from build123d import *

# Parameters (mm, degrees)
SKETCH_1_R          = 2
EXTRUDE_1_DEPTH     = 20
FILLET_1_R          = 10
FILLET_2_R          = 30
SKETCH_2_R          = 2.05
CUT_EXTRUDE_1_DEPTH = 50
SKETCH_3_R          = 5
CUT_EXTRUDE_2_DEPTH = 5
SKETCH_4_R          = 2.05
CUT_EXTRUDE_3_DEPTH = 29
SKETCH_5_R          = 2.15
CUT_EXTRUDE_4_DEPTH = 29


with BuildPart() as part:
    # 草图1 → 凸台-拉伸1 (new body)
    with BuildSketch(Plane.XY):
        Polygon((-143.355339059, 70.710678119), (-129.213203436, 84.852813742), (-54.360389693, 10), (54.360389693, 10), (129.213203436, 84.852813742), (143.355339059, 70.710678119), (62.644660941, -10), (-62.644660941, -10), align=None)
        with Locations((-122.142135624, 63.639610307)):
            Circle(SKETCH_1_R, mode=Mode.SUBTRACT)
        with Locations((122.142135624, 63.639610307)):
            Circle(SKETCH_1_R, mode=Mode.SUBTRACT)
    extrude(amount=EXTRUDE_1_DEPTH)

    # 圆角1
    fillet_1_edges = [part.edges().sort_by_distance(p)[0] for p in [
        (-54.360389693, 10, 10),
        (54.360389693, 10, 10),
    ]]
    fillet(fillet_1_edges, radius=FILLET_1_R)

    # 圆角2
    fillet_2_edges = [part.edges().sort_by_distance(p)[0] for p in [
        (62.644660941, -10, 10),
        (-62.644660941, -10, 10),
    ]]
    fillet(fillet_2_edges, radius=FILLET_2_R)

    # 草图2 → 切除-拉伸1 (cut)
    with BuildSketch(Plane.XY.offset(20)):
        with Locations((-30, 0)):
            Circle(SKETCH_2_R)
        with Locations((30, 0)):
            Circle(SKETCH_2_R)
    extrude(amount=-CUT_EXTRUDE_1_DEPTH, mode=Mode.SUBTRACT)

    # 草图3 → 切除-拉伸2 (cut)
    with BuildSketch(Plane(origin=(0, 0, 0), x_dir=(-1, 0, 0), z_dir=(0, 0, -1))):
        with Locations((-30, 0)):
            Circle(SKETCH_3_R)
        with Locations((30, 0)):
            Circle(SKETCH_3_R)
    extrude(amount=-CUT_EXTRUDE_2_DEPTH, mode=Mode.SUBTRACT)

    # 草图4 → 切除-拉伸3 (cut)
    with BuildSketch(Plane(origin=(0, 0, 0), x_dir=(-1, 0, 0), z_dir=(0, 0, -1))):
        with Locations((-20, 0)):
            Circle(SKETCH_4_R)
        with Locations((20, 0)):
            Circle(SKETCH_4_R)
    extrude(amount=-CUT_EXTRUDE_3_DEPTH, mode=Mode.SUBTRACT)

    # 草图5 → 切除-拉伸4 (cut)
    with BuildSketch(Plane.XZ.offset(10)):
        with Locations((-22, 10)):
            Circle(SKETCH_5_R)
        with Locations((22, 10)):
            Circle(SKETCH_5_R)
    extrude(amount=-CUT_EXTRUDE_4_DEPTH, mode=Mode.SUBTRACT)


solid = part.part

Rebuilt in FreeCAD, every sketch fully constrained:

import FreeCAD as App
import Part
import Sketcher
from FreeCAD import Vector
Q = App.Units.Quantity


def edges_at(feature, points):
    """Names of the edges that pass closest to the given points."""
    edges = feature.Shape.Edges
    near = lambda p: min(range(len(edges)), key=lambda i: edges[i].distToShape(Part.Vertex(*p))[0])
    return sorted({f"Edge{near(p) + 1}" for p in points})

doc = App.newDocument("Part")
body = doc.addObject("PartDesign::Body", "Body")

sketch1 = body.newObject("Sketcher::SketchObject", "Sketch")
sketch1.AttachmentSupport = (doc.getObject("XY_Plane"), [""])
sketch1.MapMode = "FlatFace"
sketch1.addGeometry([
    Part.LineSegment(Vector(-129.2, 84.9, 0), Vector(-143.4, 70.7, 0)),
    Part.LineSegment(Vector(-143.4, 70.7, 0), Vector(-62.6, -10, 0)),
    Part.LineSegment(Vector(-62.6, -10, 0), Vector(62.6, -10, 0)),
    Part.LineSegment(Vector(62.6, -10, 0), Vector(143.4, 70.7, 0)),
    Part.LineSegment(Vector(143.4, 70.7, 0), Vector(129.2, 84.9, 0)),
    Part.LineSegment(Vector(129.2, 84.9, 0), Vector(54.4, 10, 0)),
    Part.LineSegment(Vector(54.4, 10, 0), Vector(-54.4, 10, 0)),
    Part.LineSegment(Vector(-54.4, 10, 0), Vector(-129.2, 84.9, 0)),
    Part.Circle(Vector(122.1, 63.6, 0), Vector(0, 0, 1), 2),
    Part.Circle(Vector(-122.1, 63.6, 0), Vector(0, 0, 1), 2),
], False)
sketch1.addConstraint([
    Sketcher.Constraint("Coincident", 0, 2, 1, 1),
    Sketcher.Constraint("Coincident", 1, 2, 2, 1),
    Sketcher.Constraint("Coincident", 2, 2, 3, 1),
    Sketcher.Constraint("Coincident", 3, 2, 4, 1),
    Sketcher.Constraint("Coincident", 4, 2, 5, 1),
    Sketcher.Constraint("Coincident", 5, 2, 6, 1),
    Sketcher.Constraint("Coincident", 6, 2, 7, 1),
    Sketcher.Constraint("Coincident", 7, 2, 0, 1),
    Sketcher.Constraint("Horizontal", 2),
    Sketcher.Constraint("Horizontal", 6),
    Sketcher.Constraint("Equal", 8, 9),
    Sketcher.Constraint("Symmetric", 8, 3, 9, 3, -2),
    Sketcher.Constraint("Symmetric", 0, 2, 3, 2, -2),
    Sketcher.Constraint("Symmetric", 4, 2, 7, 2, -2),
    Sketcher.Constraint("Perpendicular", 0, 1),
    Sketcher.Constraint("Perpendicular", 1, 3),
    Sketcher.Constraint("Perpendicular", 3, 4),
    Sketcher.Constraint("Perpendicular", 4, 5),
    Sketcher.Constraint("Perpendicular", 5, 7),
    Sketcher.Constraint("Diameter", 8, Q("4 mm")),
    Sketcher.Constraint("Distance", 0, Q("20 mm")),
    Sketcher.Constraint("DistanceY", 1, 2, -1, 1, Q("10 mm")),
    Sketcher.Constraint("DistanceY", -1, 1, 5, 2, Q("10 mm")),
    Sketcher.Constraint("DistanceX", 0, 2, 2, 2, Q("206 mm")),
    Sketcher.Constraint("DistanceX", 2, 1, 2, 2, Q("125.289322 mm")),
    Sketcher.Constraint("DistanceY", -1, 1, 8, 3, Q("63.63961 mm")),
    Sketcher.Constraint("DistanceX", 9, 3, 8, 3, Q("244.284271 mm")),
])
pad1 = body.newObject("PartDesign::Pad", "Pad")
pad1.Profile = sketch1
pad1.Length = 20
doc.recompute()

fillet = body.newObject("PartDesign::Fillet", "Fillet")
fillet.Base = (pad1, edges_at(pad1, [(-54.36, 10, 10), (54.36, 10, 10)]))
fillet.Radius = 10
doc.recompute()

fillet2 = body.newObject("PartDesign::Fillet", "Fillet001")
fillet2.Base = (fillet, edges_at(fillet, [(62.645, -10, 10), (-62.645, -10, 10)]))
fillet2.Radius = 30

sketch2 = body.newObject("Sketcher::SketchObject", "Sketch001")
sketch2.AttachmentSupport = (doc.getObject("XY_Plane"), [""])
sketch2.MapMode = "FlatFace"
sketch2.AttachmentOffset = App.Placement(Vector(0, 0, 20), App.Rotation())
sketch2.addGeometry([
    Part.Circle(Vector(-30, 0, 0), Vector(0, 0, 1), 2),
    Part.Circle(Vector(30, 0, 0), Vector(0, 0, 1), 2),
], False)
sketch2.addConstraint([
    Sketcher.Constraint("Equal", 0, 1),
    Sketcher.Constraint("Symmetric", 0, 3, 1, 3, -1, 1),
    Sketcher.Constraint("PointOnObject", 0, 3, -1),
    Sketcher.Constraint("Diameter", 0, Q("4.1 mm")),
    Sketcher.Constraint("DistanceX", 0, 3, -1, 1, Q("30 mm")),
])
pocket1 = body.newObject("PartDesign::Pocket", "Pocket")
pocket1.Profile = sketch2
pocket1.Length = 50

sketch3 = body.newObject("Sketcher::SketchObject", "Sketch002")
sketch3.AttachmentSupport = (doc.getObject("XY_Plane"), [""])
sketch3.MapMode = "FlatFace"
sketch3.addGeometry([
    Part.Circle(Vector(30, 0, 0), Vector(0, 0, 1), 5),
    Part.Circle(Vector(-30, 0, 0), Vector(0, 0, 1), 5),
], False)
sketch3.addConstraint([
    Sketcher.Constraint("Equal", 0, 1),
    Sketcher.Constraint("Symmetric", 0, 3, 1, 3, -1, 1),
    Sketcher.Constraint("PointOnObject", 0, 3, -1),
    Sketcher.Constraint("Diameter", 0, Q("10 mm")),
    Sketcher.Constraint("DistanceX", -1, 1, 0, 3, Q("30 mm")),
])
pocket2 = body.newObject("PartDesign::Pocket", "Pocket001")
pocket2.Profile = sketch3
pocket2.Length = 5
pocket2.Reversed = True

sketch4 = body.newObject("Sketcher::SketchObject", "Sketch003")
sketch4.AttachmentSupport = (doc.getObject("XY_Plane"), [""])
sketch4.MapMode = "FlatFace"
sketch4.addGeometry([
    Part.Circle(Vector(20, 0, 0), Vector(0, 0, 1), 2),
    Part.Circle(Vector(-20, 0, 0), Vector(0, 0, 1), 2),
], False)
sketch4.addConstraint([
    Sketcher.Constraint("Equal", 0, 1),
    Sketcher.Constraint("Symmetric", 0, 3, 1, 3, -1, 1),
    Sketcher.Constraint("PointOnObject", 0, 3, -1),
    Sketcher.Constraint("Diameter", 0, Q("4.1 mm")),
    Sketcher.Constraint("DistanceX", -1, 1, 0, 3, Q("20 mm")),
])
pocket3 = body.newObject("PartDesign::Pocket", "Pocket002")
pocket3.Profile = sketch4
pocket3.Length = 29
pocket3.Reversed = True

sketch5 = body.newObject("Sketcher::SketchObject", "Sketch004")
sketch5.AttachmentSupport = (doc.getObject("XZ_Plane"), [""])
sketch5.MapMode = "FlatFace"
sketch5.AttachmentOffset = App.Placement(Vector(0, 0, 10), App.Rotation())
sketch5.addGeometry([
    Part.Circle(Vector(-22, 10, 0), Vector(0, 0, 1), 2.1),
    Part.Circle(Vector(22, 10, 0), Vector(0, 0, 1), 2.1),
], False)
sketch5.addConstraint([
    Sketcher.Constraint("Equal", 0, 1),
    Sketcher.Constraint("Symmetric", 0, 3, 1, 3, -2),
    Sketcher.Constraint("Diameter", 0, Q("4.3 mm")),
    Sketcher.Constraint("DistanceX", 0, 3, -1, 1, Q("22 mm")),
    Sketcher.Constraint("DistanceY", -1, 1, 0, 3, Q("10 mm")),
])
pocket4 = body.newObject("PartDesign::Pocket", "Pocket003")
pocket4.Profile = sketch5
pocket4.Length = 29

doc.recompute()
